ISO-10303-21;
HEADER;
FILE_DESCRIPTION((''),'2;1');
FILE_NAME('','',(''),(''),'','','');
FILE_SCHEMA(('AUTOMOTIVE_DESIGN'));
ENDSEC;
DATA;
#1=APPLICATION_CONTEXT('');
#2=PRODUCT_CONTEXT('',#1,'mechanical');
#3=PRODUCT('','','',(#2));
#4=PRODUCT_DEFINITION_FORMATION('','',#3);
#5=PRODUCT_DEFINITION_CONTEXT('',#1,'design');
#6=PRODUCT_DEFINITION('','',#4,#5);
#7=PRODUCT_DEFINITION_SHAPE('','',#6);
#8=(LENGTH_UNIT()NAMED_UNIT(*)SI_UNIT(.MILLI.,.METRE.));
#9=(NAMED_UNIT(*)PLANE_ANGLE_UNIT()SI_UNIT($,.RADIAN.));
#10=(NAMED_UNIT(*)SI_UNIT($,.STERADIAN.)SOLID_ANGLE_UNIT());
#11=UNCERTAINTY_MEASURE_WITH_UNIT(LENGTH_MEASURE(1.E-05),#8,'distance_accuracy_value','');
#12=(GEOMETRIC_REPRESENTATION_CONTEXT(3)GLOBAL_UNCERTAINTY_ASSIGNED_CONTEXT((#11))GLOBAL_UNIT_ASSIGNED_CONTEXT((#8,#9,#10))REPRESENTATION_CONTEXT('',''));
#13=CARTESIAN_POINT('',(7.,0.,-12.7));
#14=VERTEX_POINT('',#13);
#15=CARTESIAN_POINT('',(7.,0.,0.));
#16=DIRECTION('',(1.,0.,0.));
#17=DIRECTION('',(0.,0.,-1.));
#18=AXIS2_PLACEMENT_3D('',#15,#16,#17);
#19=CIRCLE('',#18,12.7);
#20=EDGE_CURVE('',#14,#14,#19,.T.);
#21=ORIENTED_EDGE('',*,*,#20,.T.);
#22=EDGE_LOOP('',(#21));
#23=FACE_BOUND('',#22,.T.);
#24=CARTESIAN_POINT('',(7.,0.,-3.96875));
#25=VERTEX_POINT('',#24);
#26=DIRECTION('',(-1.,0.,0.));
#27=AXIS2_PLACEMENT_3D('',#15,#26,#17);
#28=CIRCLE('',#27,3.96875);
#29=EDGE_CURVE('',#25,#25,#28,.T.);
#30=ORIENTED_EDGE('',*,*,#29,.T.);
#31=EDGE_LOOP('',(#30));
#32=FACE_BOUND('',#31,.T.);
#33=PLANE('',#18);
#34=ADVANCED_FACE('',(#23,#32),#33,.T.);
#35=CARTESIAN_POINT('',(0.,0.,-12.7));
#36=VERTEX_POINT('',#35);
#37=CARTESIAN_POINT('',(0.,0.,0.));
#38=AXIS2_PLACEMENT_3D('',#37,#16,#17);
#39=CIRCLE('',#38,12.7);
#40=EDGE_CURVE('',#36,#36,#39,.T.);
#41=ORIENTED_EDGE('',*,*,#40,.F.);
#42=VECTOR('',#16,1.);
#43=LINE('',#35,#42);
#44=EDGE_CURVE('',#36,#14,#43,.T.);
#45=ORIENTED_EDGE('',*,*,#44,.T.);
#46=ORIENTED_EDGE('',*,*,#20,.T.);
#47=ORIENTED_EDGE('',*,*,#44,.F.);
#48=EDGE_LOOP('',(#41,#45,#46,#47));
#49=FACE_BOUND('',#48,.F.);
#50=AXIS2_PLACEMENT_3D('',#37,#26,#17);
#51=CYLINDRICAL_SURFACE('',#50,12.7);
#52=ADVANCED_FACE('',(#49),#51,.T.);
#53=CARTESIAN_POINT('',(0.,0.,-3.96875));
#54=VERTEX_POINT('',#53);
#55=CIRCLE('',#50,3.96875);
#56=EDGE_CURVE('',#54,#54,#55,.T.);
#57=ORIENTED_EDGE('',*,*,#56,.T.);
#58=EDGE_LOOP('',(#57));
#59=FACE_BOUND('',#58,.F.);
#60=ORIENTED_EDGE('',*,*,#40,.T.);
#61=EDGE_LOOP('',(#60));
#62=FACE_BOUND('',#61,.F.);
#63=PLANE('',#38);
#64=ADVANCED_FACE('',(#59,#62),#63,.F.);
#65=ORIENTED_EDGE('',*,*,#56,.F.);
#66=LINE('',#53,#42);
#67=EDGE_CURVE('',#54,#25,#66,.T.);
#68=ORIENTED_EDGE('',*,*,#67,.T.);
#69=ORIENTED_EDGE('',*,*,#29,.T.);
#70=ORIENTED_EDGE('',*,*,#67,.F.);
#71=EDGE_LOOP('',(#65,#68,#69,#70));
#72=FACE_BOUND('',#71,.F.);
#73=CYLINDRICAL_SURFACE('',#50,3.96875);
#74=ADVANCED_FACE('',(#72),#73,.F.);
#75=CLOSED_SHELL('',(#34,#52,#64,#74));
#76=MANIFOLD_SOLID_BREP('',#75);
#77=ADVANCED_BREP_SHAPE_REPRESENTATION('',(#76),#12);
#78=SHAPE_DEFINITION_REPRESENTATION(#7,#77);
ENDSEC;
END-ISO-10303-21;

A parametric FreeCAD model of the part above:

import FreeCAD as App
import Part
import Sketcher
from FreeCAD import Vector
Q = App.Units.Quantity

doc = App.newDocument("Part")
body = doc.addObject("PartDesign::Body", "Body")

# Sketch on XY plane
sketch1 = doc.addObject("Sketcher::SketchObject", "Sketch")
body.addObject(sketch1)
sketch1.AttachmentSupport = (doc.XY_Plane, [""])
sketch1.MapMode = "FlatFace"
sketch1.addGeometry(Part.Circle(Vector(0, 0, 0), Vector(0, 0, 1), 4), False)
sketch1.addConstraint([
    Sketcher.Constraint("Coincident", 0, 3, -1, 1),
    Sketcher.Constraint("Diameter", 0, Q("0.3125 in")),
])
pad1 = doc.addObject("PartDesign::Pad", "Pad")
body.addObject(pad1)
pad1.Profile = sketch1
pad1.Length = 7
body2 = doc.addObject("PartDesign::Body", "Body001")

# Sketch on XY plane
sketch2 = doc.addObject("Sketcher::SketchObject", "Sketch001")
body2.addObject(sketch2)
sketch2.AttachmentSupport = (doc.getObject("XY_Plane001"), [""])
sketch2.MapMode = "FlatFace"
sketch2.addGeometry(Part.Circle(Vector(0, 0, 0), Vector(0, 0, 1), 13), False)
sketch2.addConstraint([
    Sketcher.Constraint("Coincident", 0, 3, -1, 1),
    Sketcher.Constraint("Diameter", 0, Q("1 in")),
])
pad2 = doc.addObject("PartDesign::Pad", "Pad001")
body2.addObject(pad2)
pad2.Profile = sketch2
pad2.Length = 7
doc.recompute()

boolean = doc.addObject("PartDesign::Boolean", "Boolean")
body2.addObject(boolean)
boolean.Type = "Cut"
boolean.addObjects([body])
body3 = doc.addObject("PartDesign::Body", "Body002")
doc.recompute()

body2.Placement = App.Placement(Vector(0, 0, 0), App.Rotation(Vector(0, 1, 0), 90))
boolean2 = doc.addObject("PartDesign::Boolean", "Boolean001")
body3.addObject(boolean2)
boolean2.Type = "Fuse"
boolean2.addObjects([body2])

doc.recompute()
